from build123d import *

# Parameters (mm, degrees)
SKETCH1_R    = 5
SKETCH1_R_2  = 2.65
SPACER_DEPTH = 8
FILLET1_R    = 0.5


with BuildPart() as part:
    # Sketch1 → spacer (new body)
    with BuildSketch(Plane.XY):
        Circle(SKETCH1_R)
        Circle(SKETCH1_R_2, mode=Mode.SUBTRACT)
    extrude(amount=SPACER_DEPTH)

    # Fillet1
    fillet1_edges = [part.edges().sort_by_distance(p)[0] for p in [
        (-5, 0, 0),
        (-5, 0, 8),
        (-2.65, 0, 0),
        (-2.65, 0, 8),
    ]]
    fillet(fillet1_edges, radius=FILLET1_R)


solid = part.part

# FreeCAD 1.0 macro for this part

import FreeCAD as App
import Part
import Sketcher
from FreeCAD import Vector


def edges_at(feature, points):
    """Names of the edges that pass closest to the given points."""
    edges = feature.Shape.Edges
    near = lambda p: min(range(len(edges)), key=lambda i: edges[i].distToShape(Part.Vertex(*p))[0])
    return sorted({f"Edge{near(p) + 1}" for p in points})

doc = App.newDocument("Part")
body = doc.addObject("PartDesign::Body", "Body")

sketch1 = body.newObject("Sketcher::SketchObject", "Sketch")
sketch1.AttachmentSupport = (doc.getObject("XY_Plane"), [""])
sketch1.MapMode = "FlatFace"
sketch1.addGeometry([
    Part.Circle(Vector(0, 0, 0), Vector(0, 0, 1), 5),
    Part.Circle(Vector(0, 0, 0), Vector(0, 0, 1), 2.65),
], False)
sketch1.addConstraint([
    Sketcher.Constraint("Coincident", 0, 3, -1, 1),
    Sketcher.Constraint("Coincident", 1, 3, -1, 1),
    Sketcher.Constraint("Diameter", 0, 10.0),
    Sketcher.Constraint("Diameter", 1, 5.3),
])
pad1 = body.newObject("PartDesign::Pad", "Pad")
pad1.Profile = sketch1
pad1.Length = 8
doc.recompute()

fillet = body.newObject("PartDesign::Fillet", "Fillet")
fillet.Base = (pad1, edges_at(pad1, [
    (-5, 0, 0),
    (-5, 0, 8),
    (-2.65, 0, 0),
    (-2.65, 0, 8),
]))
fillet.Radius = 0.5

doc.recompute()
